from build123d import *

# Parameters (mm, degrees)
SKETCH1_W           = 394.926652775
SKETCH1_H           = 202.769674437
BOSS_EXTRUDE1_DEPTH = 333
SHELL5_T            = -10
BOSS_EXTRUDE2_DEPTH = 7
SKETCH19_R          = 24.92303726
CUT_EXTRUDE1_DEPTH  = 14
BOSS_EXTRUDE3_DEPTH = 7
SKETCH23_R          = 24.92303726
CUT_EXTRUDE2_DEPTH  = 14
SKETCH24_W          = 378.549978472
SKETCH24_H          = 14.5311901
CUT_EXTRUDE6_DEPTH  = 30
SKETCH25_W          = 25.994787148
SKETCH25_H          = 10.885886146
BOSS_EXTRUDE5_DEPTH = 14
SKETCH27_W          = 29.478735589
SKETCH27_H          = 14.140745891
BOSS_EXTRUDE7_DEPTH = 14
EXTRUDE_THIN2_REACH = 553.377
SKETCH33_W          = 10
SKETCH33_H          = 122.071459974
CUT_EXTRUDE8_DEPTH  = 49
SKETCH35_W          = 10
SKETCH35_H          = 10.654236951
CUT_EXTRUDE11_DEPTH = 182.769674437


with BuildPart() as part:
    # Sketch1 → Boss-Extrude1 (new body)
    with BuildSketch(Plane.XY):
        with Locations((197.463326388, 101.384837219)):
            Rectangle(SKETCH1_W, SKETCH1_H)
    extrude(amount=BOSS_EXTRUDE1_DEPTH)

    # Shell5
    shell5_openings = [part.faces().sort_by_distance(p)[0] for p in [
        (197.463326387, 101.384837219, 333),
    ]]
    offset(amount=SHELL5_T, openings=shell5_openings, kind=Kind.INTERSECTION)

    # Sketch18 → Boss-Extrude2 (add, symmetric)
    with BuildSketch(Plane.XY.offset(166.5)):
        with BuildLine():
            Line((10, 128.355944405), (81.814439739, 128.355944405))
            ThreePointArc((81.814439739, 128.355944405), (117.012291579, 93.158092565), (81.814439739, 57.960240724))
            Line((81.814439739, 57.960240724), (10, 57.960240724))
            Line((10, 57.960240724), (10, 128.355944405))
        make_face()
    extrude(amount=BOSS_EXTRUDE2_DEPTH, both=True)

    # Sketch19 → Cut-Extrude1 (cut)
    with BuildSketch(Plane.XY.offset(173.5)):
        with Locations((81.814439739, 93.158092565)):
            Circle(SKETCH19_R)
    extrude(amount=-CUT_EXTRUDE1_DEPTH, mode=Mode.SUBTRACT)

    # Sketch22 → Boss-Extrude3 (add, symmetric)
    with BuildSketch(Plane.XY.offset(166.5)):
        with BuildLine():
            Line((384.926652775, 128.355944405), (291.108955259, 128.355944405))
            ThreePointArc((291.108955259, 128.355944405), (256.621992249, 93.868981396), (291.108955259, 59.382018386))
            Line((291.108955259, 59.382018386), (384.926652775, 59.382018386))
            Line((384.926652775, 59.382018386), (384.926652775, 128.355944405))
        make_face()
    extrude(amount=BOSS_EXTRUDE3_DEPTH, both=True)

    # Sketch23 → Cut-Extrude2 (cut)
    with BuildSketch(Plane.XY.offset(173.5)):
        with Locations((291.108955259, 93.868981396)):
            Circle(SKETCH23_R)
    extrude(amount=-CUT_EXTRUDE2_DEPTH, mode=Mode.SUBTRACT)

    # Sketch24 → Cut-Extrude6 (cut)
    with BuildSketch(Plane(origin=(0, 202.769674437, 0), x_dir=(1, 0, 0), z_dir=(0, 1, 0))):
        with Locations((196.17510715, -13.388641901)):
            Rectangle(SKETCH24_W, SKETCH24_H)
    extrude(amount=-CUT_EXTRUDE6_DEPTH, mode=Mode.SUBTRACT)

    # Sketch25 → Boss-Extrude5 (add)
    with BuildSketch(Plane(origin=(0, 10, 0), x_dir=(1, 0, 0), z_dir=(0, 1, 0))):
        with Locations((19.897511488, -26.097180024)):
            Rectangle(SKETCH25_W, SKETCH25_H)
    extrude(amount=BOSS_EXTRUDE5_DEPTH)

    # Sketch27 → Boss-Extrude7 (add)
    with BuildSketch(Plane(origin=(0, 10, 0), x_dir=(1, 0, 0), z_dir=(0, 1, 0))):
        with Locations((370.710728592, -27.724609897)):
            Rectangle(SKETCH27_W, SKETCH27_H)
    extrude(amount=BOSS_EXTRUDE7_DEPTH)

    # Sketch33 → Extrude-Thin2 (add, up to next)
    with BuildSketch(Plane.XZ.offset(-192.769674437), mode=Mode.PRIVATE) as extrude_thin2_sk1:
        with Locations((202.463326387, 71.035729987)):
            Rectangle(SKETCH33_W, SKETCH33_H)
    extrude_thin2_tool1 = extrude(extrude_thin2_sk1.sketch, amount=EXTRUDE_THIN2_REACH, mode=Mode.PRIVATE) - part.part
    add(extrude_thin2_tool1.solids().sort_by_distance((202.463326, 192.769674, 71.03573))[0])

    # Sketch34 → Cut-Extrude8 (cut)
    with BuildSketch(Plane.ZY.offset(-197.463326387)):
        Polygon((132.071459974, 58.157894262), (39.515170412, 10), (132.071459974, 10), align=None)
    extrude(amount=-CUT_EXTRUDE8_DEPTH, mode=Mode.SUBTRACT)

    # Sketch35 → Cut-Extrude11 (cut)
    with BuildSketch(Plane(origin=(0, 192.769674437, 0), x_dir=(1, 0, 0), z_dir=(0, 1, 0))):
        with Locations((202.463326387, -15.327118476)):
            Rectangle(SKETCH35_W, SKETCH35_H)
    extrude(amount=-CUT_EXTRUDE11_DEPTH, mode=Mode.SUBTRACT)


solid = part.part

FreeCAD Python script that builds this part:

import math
import FreeCAD as App
import Part
import Sketcher


def faces_at(feature, points):
    """Names of the faces that lie closest to the given points."""
    faces = feature.Shape.Faces
    near = lambda p: min(range(len(faces)), key=lambda i: faces[i].distToShape(Part.Vertex(*p))[0])
    return sorted({f"Face{near(p) + 1}" for p in points})

doc = App.newDocument("Part")
body = doc.addObject("PartDesign::Body", "Body")

sketch1 = body.newObject("Sketcher::SketchObject", "Sketch")
sketch1.AttachmentSupport = (doc.getObject("XY_Plane"), [""])
sketch1.MapMode = "FlatFace"
sketch1.addGeometry([
    Part.LineSegment(App.Vector(0, 203, 0), App.Vector(0, 0, 0)),
    Part.LineSegment(App.Vector(0, 0, 0), App.Vector(395, 0, 0)),
    Part.LineSegment(App.Vector(395, 0, 0), App.Vector(395, 203, 0)),
    Part.LineSegment(App.Vector(395, 203, 0), App.Vector(0, 203, 0)),
], False)
sketch1.addConstraint([
    Sketcher.Constraint("Coincident", 0, 2, 1, 1),
    Sketcher.Constraint("Coincident", 1, 2, 2, 1),
    Sketcher.Constraint("Coincident", 2, 2, 3, 1),
    Sketcher.Constraint("Coincident", 3, 2, 0, 1),
    Sketcher.Constraint("Vertical", 0),
    Sketcher.Constraint("Horizontal", 1),
    Sketcher.Constraint("Vertical", 2),
    Sketcher.Constraint("Horizontal", 3),
    Sketcher.Constraint("Coincident", 0, 2, -1, 1),
    Sketcher.Constraint("DistanceX", 1, 1, 1, 2, 394.926653),
    Sketcher.Constraint("DistanceY", 0, 2, 0, 1, 202.769674),
])
pad1 = body.newObject("PartDesign::Pad", "Pad")
pad1.Profile = sketch1
pad1.Length = 333
doc.recompute()

thickness = body.newObject("PartDesign::Thickness", "Thickness")
thickness.Base = (pad1, faces_at(pad1, [(197.463, 101.385, 333)]))
thickness.Value = 10
thickness.Reversed = True
thickness.Join = "Intersection"

sketch2 = body.newObject("Sketcher::SketchObject", "Sketch001")
sketch2.AttachmentSupport = (doc.getObject("XY_Plane"), [""])
sketch2.MapMode = "FlatFace"
sketch2.AttachmentOffset = App.Placement(App.Vector(0, 0, 166.5), App.Rotation())
sketch2.addGeometry([
    Part.LineSegment(App.Vector(82, 128, 0), App.Vector(10, 128, 0)),
    Part.LineSegment(App.Vector(10, 128, 0), App.Vector(10, 58, 0)),
    Part.LineSegment(App.Vector(10, 58, 0), App.Vector(82, 58, 0)),
    Part.ArcOfCircle(Part.Circle(App.Vector(82, 93, 0), App.Vector(0, 0, 1), 35), math.radians(-90), math.radians(90)),
], False)
sketch2.addConstraint([
    Sketcher.Constraint("Coincident", 0, 2, 1, 1),
    Sketcher.Constraint("Coincident", 1, 2, 2, 1),
    Sketcher.Constraint("Tangent", 2, 2, 3, 1),
    Sketcher.Constraint("Tangent", 3, 2, 0, 1),
    Sketcher.Constraint("Horizontal", 0),
    Sketcher.Constraint("Vertical", 1),
    Sketcher.Constraint("Horizontal", 2),
    Sketcher.Constraint("DistanceX", -1, 1, 0, 2, 10.0),
    Sketcher.Constraint("Radius", 3, 35.197852),
    Sketcher.Constraint("DistanceX", 0, 2, 0, 1, 71.81444),
    Sketcher.Constraint("DistanceY", -1, 1, 1, 2, 57.960241),
])
pad2 = body.newObject("PartDesign::Pad", "Pad001")
pad2.Profile = sketch2
pad2.Length = 14
pad2.Midplane = True

sketch3 = body.newObject("Sketcher::SketchObject", "Sketch002")
sketch3.AttachmentSupport = (doc.getObject("XY_Plane"), [""])
sketch3.MapMode = "FlatFace"
sketch3.AttachmentOffset = App.Placement(App.Vector(0, 0, 173.5), App.Rotation())
sketch3.addGeometry(Part.Circle(App.Vector(82, 93, 0), App.Vector(0, 0, 1), 25), False)
sketch3.addConstraint([
    Sketcher.Constraint("Diameter", 0, 49.846075),
    Sketcher.Constraint("DistanceX", -1, 1, 0, 3, 81.81444),
    Sketcher.Constraint("DistanceY", -1, 1, 0, 3, 93.158093),
])
pocket1 = body.newObject("PartDesign::Pocket", "Pocket")
pocket1.Profile = sketch3
pocket1.Length = 14

sketch4 = body.newObject("Sketcher::SketchObject", "Sketch003")
sketch4.AttachmentSupport = (doc.getObject("XY_Plane"), [""])
sketch4.MapMode = "FlatFace"
sketch4.AttachmentOffset = App.Placement(App.Vector(0, 0, 166.5), App.Rotation())
sketch4.addGeometry([
    Part.LineSegment(App.Vector(385, 128, 0), App.Vector(291, 128, 0)),
    Part.ArcOfCircle(Part.Circle(App.Vector(291, 94, 0), App.Vector(0, 0, 1), 34), math.radians(90), math.radians(270)),
    Part.LineSegment(App.Vector(291, 59, 0), App.Vector(385, 59, 0)),
    Part.LineSegment(App.Vector(385, 59, 0), App.Vector(385, 128, 0)),
], False)
sketch4.addConstraint([
    Sketcher.Constraint("Tangent", 0, 2, 1, 1),
    Sketcher.Constraint("Tangent", 1, 2, 2, 1),
    Sketcher.Constraint("Coincident", 2, 2, 3, 1),
    Sketcher.Constraint("Coincident", 3, 2, 0, 1),
    Sketcher.Constraint("Horizontal", 0),
    Sketcher.Constraint("Horizontal", 2),
    Sketcher.Constraint("Vertical", 3),
    Sketcher.Constraint("Radius", 1, 34.486963),
    Sketcher.Constraint("DistanceX", 0, 2, 0, 1, 93.817698),
    Sketcher.Constraint("DistanceY", -1, 1, 1, 3, 93.868981),
    Sketcher.Constraint("DistanceX", -1, 1, 1, 3, 291.108955),
])
pad3 = body.newObject("PartDesign::Pad", "Pad002")
pad3.Profile = sketch4
pad3.Length = 14
pad3.Midplane = True

sketch5 = body.newObject("Sketcher::SketchObject", "Sketch004")
sketch5.AttachmentSupport = (doc.getObject("XY_Plane"), [""])
sketch5.MapMode = "FlatFace"
sketch5.AttachmentOffset = App.Placement(App.Vector(0, 0, 173.5), App.Rotation())
sketch5.addGeometry(Part.Circle(App.Vector(291, 94, 0), App.Vector(0, 0, 1), 25), False)
sketch5.addConstraint([
    Sketcher.Constraint("Diameter", 0, 49.846075),
    Sketcher.Constraint("DistanceY", -1, 1, 0, 3, 93.868981),
    Sketcher.Constraint("DistanceX", -1, 1, 0, 3, 291.108955),
])
pocket2 = body.newObject("PartDesign::Pocket", "Pocket001")
pocket2.Profile = sketch5
pocket2.Length = 14

sketch6 = body.newObject("Sketcher::SketchObject", "Sketch005")
sketch6.AttachmentSupport = (doc.getObject("XZ_Plane"), [""])
sketch6.MapMode = "FlatFace"
sketch6.AttachmentOffset = App.Placement(App.Vector(0, 0, -202.769674), App.Rotation())
sketch6.addGeometry([
    Part.LineSegment(App.Vector(7, 6, 0), App.Vector(7, 21, 0)),
    Part.LineSegment(App.Vector(7, 21, 0), App.Vector(385, 21, 0)),
    Part.LineSegment(App.Vector(385, 21, 0), App.Vector(385, 6, 0)),
    Part.LineSegment(App.Vector(385, 6, 0), App.Vector(7, 6, 0)),
], False)
sketch6.addConstraint([
    Sketcher.Constraint("Coincident", 0, 2, 1, 1),
    Sketcher.Constraint("Coincident", 1, 2, 2, 1),
    Sketcher.Constraint("Coincident", 2, 2, 3, 1),
    Sketcher.Constraint("Coincident", 3, 2, 0, 1),
    Sketcher.Constraint("Vertical", 0),
    Sketcher.Constraint("Horizontal", 1),
    Sketcher.Constraint("Vertical", 2),
    Sketcher.Constraint("Horizontal", 3),
    Sketcher.Constraint("DistanceX", 1, 1, 1, 2, 378.549978),
    Sketcher.Constraint("DistanceY", 0, 1, 0, 2, 14.53119),
    Sketcher.Constraint("DistanceX", -1, 1, 0, 2, 6.900118),
    Sketcher.Constraint("DistanceY", -1, 1, 0, 2, 20.654237),
])
pocket3 = body.newObject("PartDesign::Pocket", "Pocket002")
pocket3.Profile = sketch6
pocket3.Length = 30
pocket3.Reversed = True

sketch7 = body.newObject("Sketcher::SketchObject", "Sketch006")
sketch7.AttachmentSupport = (doc.getObject("XZ_Plane"), [""])
sketch7.MapMode = "FlatFace"
sketch7.AttachmentOffset = App.Placement(App.Vector(0, 0, -10), App.Rotation())
sketch7.addGeometry([
    Part.LineSegment(App.Vector(7, 21, 0), App.Vector(7, 32, 0)),
    Part.LineSegment(App.Vector(7, 32, 0), App.Vector(33, 32, 0)),
    Part.LineSegment(App.Vector(33, 32, 0), App.Vector(33, 21, 0)),
    Part.LineSegment(App.Vector(33, 21, 0), App.Vector(7, 21, 0)),
], False)
sketch7.addConstraint([
    Sketcher.Constraint("Coincident", 0, 2, 1, 1),
    Sketcher.Constraint("Coincident", 1, 2, 2, 1),
    Sketcher.Constraint("Coincident", 2, 2, 3, 1),
    Sketcher.Constraint("Coincident", 3, 2, 0, 1),
    Sketcher.Constraint("Vertical", 0),
    Sketcher.Constraint("Horizontal", 1),
    Sketcher.Constraint("Vertical", 2),
    Sketcher.Constraint("Horizontal", 3),
    Sketcher.Constraint("DistanceX", 1, 1, 1, 2, 25.994787),
    Sketcher.Constraint("DistanceY", 0, 1, 0, 2, 10.885886),
    Sketcher.Constraint("DistanceX", -1, 1, 0, 2, 6.900118),
    Sketcher.Constraint("DistanceY", -1, 1, 0, 2, 31.540123),
])
pad4 = body.newObject("PartDesign::Pad", "Pad003")
pad4.Profile = sketch7
pad4.Length = 14
pad4.Reversed = True

sketch8 = body.newObject("Sketcher::SketchObject", "Sketch007")
sketch8.AttachmentSupport = (doc.getObject("XZ_Plane"), [""])
sketch8.MapMode = "FlatFace"
sketch8.AttachmentOffset = App.Placement(App.Vector(0, 0, -10), App.Rotation())
sketch8.addGeometry([
    Part.LineSegment(App.Vector(356, 21, 0), App.Vector(356, 35, 0)),
    Part.LineSegment(App.Vector(356, 35, 0), App.Vector(385, 35, 0)),
    Part.LineSegment(App.Vector(385, 35, 0), App.Vector(385, 21, 0)),
    Part.LineSegment(App.Vector(385, 21, 0), App.Vector(356, 21, 0)),
], False)
sketch8.addConstraint([
    Sketcher.Constraint("Coincident", 0, 2, 1, 1),
    Sketcher.Constraint("Coincident", 1, 2, 2, 1),
    Sketcher.Constraint("Coincident", 2, 2, 3, 1),
    Sketcher.Constraint("Coincident", 3, 2, 0, 1),
    Sketcher.Constraint("Vertical", 0),
    Sketcher.Constraint("Horizontal", 1),
    Sketcher.Constraint("Vertical", 2),
    Sketcher.Constraint("Horizontal", 3),
    Sketcher.Constraint("DistanceX", 1, 1, 1, 2, 29.478736),
    Sketcher.Constraint("DistanceY", 0, 1, 0, 2, 14.140746),
    Sketcher.Constraint("DistanceX", -1, 1, 0, 2, 355.971361),
    Sketcher.Constraint("DistanceY", -1, 1, 0, 2, 34.794983),
])
pad5 = body.newObject("PartDesign::Pad", "Pad004")
pad5.Profile = sketch8
pad5.Length = 14
pad5.Reversed = True

sketch9 = body.newObject("Sketcher::SketchObject", "Sketch008")
sketch9.AttachmentSupport = (doc.getObject("XZ_Plane"), [""])
sketch9.MapMode = "FlatFace"
sketch9.AttachmentOffset = App.Placement(App.Vector(0, 0, -192.769674), App.Rotation())
sketch9.addGeometry([
    Part.LineSegment(App.Vector(197, 132, 0), App.Vector(197, 10, 0)),
    Part.LineSegment(App.Vector(197, 10, 0), App.Vector(207, 10, 0)),
    Part.LineSegment(App.Vector(207, 10, 0), App.Vector(207, 132, 0)),
    Part.LineSegment(App.Vector(207, 132, 0), App.Vector(197, 132, 0)),
], False)
sketch9.addConstraint([
    Sketcher.Constraint("Coincident", 0, 2, 1, 1),
    Sketcher.Constraint("Coincident", 1, 2, 2, 1),
    Sketcher.Constraint("Coincident", 2, 2, 3, 1),
    Sketcher.Constraint("Coincident", 3, 2, 0, 1),
    Sketcher.Constraint("Vertical", 0),
    Sketcher.Constraint("Horizontal", 1),
    Sketcher.Constraint("Vertical", 2),
    Sketcher.Constraint("Horizontal", 3),
    Sketcher.Constraint("DistanceX", 1, 1, 1, 2, 10.0),
    Sketcher.Constraint("DistanceY", -1, 1, 0, 2, 10.0),
    Sketcher.Constraint("DistanceY", 0, 2, 0, 1, 122.07146),
    Sketcher.Constraint("DistanceX", -1, 1, 0, 2, 197.463326),
])
pad6 = body.newObject("PartDesign::Pad", "Pad005")
pad6.Profile = sketch9
pad6.Type = "UpToFirst"

sketch10 = body.newObject("Sketcher::SketchObject", "Sketch009")
sketch10.AttachmentSupport = (doc.getObject("YZ_Plane"), [""])
sketch10.MapMode = "FlatFace"
sketch10.AttachmentOffset = App.Placement(App.Vector(0, 0, 197.463326), App.Rotation())
sketch10.addGeometry([
    Part.LineSegment(App.Vector(58, 132, 0), App.Vector(10, 40, 0)),
    Part.LineSegment(App.Vector(10, 40, 0), App.Vector(10, 132, 0)),
    Part.LineSegment(App.Vector(10, 132, 0), App.Vector(58, 132, 0)),
], False)
sketch10.addConstraint([
    Sketcher.Constraint("Coincident", 0, 2, 1, 1),
    Sketcher.Constraint("Coincident", 1, 2, 2, 1),
    Sketcher.Constraint("Coincident", 2, 2, 0, 1),
    Sketcher.Constraint("Vertical", 1),
    Sketcher.Constraint("Horizontal", 2),
    Sketcher.Constraint("DistanceX", -1, 1, 0, 2, 10.0),
    Sketcher.Constraint("DistanceY", 1, 1, 1, 2, 92.55629),
    Sketcher.Constraint("DistanceX", 2, 1, 2, 2, 48.157894),
    Sketcher.Constraint("DistanceY", -1, 1, 0, 2, 39.51517),
])
pocket4 = body.newObject("PartDesign::Pocket", "Pocket003")
pocket4.Profile = sketch10
pocket4.Length = 49
pocket4.Reversed = True

sketch11 = body.newObject("Sketcher::SketchObject", "Sketch010")
sketch11.AttachmentSupport = (doc.getObject("XZ_Plane"), [""])
sketch11.MapMode = "FlatFace"
sketch11.AttachmentOffset = App.Placement(App.Vector(0, 0, -192.769674), App.Rotation())
sketch11.addGeometry([
    Part.LineSegment(App.Vector(197, 10, 0), App.Vector(197, 21, 0)),
    Part.LineSegment(App.Vector(197, 21, 0), App.Vector(207, 21, 0)),
    Part.LineSegment(App.Vector(207, 21, 0), App.Vector(207, 10, 0)),
    Part.LineSegment(App.Vector(207, 10, 0), App.Vector(197, 10, 0)),
], False)
sketch11.addConstraint([
    Sketcher.Constraint("Coincident", 0, 2, 1, 1),
    Sketcher.Constraint("Coincident", 1, 2, 2, 1),
    Sketcher.Constraint("Coincident", 2, 2, 3, 1),
    Sketcher.Constraint("Coincident", 3, 2, 0, 1),
    Sketcher.Constraint("Vertical", 0),
    Sketcher.Constraint("Horizontal", 1),
    Sketcher.Constraint("Vertical", 2),
    Sketcher.Constraint("Horizontal", 3),
    Sketcher.Constraint("DistanceX", 1, 1, 1, 2, 10.0),
    Sketcher.Constraint("DistanceY", -1, 1, 2, 2, 10.0),
    Sketcher.Constraint("DistanceY", 0, 1, 0, 2, 10.654237),
    Sketcher.Constraint("DistanceX", -1, 1, 0, 2, 197.463326),
])
pocket5 = body.newObject("PartDesign::Pocket", "Pocket004")
pocket5.Profile = sketch11
pocket5.Length = 182.769674
pocket5.Reversed = True

doc.recompute()
